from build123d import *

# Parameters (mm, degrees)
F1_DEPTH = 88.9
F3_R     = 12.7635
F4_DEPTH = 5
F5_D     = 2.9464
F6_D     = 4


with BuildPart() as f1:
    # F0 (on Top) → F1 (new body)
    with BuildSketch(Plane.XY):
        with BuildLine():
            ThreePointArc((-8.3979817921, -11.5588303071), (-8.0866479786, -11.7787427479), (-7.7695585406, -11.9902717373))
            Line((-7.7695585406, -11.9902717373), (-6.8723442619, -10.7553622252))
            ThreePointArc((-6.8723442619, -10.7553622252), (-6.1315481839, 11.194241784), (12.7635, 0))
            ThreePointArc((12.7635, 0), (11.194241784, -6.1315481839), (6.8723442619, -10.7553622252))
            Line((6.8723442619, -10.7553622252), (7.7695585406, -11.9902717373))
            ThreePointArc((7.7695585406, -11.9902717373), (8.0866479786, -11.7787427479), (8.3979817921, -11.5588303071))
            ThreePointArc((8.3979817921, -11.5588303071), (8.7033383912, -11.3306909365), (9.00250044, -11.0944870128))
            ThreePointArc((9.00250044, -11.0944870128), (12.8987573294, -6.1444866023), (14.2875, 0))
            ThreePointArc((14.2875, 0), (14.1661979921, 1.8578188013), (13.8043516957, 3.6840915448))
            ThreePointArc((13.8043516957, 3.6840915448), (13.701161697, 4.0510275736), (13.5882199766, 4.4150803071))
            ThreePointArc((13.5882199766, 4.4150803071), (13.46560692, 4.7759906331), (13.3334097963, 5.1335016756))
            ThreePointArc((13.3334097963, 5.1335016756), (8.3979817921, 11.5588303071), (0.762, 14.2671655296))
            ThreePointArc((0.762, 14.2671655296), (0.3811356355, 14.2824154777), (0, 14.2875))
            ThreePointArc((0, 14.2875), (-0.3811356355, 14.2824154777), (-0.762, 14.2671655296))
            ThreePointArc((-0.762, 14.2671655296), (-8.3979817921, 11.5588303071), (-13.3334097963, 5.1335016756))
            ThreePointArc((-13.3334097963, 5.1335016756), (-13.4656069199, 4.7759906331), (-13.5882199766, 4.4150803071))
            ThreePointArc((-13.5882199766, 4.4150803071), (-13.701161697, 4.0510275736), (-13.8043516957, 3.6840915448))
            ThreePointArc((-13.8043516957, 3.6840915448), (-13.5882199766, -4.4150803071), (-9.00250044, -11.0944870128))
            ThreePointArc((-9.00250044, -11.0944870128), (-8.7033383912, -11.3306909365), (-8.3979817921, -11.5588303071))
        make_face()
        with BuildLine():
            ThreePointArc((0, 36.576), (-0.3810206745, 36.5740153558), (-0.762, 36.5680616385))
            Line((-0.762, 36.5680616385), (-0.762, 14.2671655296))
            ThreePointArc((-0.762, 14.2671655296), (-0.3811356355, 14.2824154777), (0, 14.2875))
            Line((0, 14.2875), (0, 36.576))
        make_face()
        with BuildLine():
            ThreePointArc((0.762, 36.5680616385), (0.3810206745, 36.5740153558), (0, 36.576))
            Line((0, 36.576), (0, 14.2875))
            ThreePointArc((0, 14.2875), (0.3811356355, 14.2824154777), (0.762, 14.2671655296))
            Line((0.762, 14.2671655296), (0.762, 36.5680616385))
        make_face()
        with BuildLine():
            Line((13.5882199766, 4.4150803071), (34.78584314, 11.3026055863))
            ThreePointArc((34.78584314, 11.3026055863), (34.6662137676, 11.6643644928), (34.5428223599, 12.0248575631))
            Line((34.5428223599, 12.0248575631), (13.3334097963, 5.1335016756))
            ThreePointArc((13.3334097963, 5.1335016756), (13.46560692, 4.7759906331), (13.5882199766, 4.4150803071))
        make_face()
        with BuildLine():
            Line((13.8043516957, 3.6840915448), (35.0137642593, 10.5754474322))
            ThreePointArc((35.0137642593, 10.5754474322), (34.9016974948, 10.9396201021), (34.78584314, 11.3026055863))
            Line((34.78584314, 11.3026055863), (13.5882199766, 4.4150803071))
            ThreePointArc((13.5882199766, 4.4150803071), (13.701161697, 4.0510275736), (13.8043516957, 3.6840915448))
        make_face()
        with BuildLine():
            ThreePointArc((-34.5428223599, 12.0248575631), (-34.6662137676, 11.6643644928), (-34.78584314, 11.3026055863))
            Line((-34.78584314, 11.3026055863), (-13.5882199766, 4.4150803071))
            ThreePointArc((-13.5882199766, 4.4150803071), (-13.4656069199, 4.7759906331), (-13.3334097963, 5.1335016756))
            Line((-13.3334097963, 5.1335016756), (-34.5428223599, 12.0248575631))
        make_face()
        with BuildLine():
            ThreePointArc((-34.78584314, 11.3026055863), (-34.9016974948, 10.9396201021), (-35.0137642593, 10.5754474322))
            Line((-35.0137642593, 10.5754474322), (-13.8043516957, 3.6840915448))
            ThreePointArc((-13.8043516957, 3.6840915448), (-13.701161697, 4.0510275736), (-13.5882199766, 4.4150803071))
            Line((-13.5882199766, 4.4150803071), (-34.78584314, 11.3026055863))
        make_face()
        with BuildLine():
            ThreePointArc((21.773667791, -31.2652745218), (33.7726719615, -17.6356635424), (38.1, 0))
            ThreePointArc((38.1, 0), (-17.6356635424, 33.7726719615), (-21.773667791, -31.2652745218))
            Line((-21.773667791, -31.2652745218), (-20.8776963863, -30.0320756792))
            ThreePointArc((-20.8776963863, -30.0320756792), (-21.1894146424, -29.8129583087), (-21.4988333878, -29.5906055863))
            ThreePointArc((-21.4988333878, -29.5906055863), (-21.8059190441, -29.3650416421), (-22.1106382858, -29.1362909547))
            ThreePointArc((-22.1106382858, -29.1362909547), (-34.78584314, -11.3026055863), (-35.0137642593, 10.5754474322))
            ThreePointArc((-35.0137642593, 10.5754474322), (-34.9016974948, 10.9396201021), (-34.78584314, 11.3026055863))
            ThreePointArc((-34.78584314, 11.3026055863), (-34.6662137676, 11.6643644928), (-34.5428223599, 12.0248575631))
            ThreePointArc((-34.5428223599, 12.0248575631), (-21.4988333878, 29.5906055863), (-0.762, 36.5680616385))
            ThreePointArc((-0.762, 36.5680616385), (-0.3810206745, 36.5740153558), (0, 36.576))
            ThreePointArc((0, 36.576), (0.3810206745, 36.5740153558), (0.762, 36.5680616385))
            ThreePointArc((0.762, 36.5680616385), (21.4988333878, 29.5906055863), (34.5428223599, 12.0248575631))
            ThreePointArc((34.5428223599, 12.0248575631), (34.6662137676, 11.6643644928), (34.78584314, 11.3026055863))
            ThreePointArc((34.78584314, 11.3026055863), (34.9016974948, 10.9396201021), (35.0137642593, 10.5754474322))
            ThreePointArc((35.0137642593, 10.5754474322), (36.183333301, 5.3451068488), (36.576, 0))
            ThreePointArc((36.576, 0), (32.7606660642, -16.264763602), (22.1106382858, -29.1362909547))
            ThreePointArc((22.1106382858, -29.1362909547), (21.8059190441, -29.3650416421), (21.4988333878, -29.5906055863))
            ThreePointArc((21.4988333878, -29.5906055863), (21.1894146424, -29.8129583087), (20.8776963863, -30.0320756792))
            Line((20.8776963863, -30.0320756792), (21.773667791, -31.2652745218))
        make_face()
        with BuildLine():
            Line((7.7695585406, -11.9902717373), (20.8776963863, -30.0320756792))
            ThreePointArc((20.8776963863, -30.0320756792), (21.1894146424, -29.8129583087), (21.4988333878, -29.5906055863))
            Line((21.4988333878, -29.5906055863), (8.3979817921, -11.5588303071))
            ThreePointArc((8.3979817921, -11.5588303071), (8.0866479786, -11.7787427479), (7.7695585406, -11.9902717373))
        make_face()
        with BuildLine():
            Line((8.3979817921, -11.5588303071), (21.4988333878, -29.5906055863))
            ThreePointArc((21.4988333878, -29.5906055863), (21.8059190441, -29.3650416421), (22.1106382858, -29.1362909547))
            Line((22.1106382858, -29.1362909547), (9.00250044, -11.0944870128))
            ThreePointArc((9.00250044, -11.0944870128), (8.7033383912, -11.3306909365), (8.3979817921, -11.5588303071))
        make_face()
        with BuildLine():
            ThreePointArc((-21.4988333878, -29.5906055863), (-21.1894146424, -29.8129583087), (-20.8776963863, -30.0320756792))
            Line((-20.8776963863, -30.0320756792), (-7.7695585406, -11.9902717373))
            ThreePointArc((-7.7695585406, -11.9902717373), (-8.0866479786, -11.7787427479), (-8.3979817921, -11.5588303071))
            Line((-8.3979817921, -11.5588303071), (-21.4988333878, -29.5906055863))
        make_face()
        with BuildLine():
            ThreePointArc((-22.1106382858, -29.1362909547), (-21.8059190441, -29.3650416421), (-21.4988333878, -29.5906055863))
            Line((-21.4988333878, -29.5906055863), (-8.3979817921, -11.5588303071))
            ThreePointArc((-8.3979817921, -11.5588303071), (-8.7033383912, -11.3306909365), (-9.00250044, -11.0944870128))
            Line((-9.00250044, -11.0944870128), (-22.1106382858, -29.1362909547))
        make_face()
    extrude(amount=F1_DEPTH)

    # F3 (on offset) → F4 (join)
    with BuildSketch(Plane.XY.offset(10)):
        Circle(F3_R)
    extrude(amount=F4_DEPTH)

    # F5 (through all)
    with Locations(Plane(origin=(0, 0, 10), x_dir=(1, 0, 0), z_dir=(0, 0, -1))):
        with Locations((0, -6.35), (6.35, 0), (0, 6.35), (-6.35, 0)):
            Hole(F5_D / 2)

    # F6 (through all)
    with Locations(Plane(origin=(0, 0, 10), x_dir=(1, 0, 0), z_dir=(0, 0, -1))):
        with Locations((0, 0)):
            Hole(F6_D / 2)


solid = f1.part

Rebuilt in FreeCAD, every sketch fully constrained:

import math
import FreeCAD as App
import Part
import Sketcher
Q = App.Units.Quantity

doc = App.newDocument("Part")
body = doc.addObject("PartDesign::Body", "Body")

# Sketch on XY plane
sketch1 = body.newObject("Sketcher::SketchObject", "Sketch")
sketch1.AttachmentSupport = (doc.getObject("XY_Plane"), [""])
sketch1.MapMode = "FlatFace"
sketch1.addGeometry([
    Part.LineSegment(App.Vector(-7.8, -12, 0), App.Vector(-6.9, -10.8, 0)),  # 0
    Part.ArcOfCircle(Part.Circle(App.Vector(0, 0, 0), App.Vector(0, 0, 1), 12.8), math.radians(0), math.radians(237)),  # 1
    Part.ArcOfCircle(Part.Circle(App.Vector(0, 0, 0), App.Vector(0, 0, 1), 12.8), math.radians(-57), math.radians(0)),  # 2
    Part.LineSegment(App.Vector(6.9, -10.8, 0), App.Vector(7.8, -12, 0)),  # 3
    Part.LineSegment(App.Vector(7.8, -12, 0), App.Vector(20.9, -30, 0)),  # 4
    Part.LineSegment(App.Vector(20.9, -30, 0), App.Vector(21.8, -31.3, 0)),  # 5
    Part.ArcOfCircle(Part.Circle(App.Vector(0, 0, 0), App.Vector(0, 0, 1), 38.1), math.radians(-55), math.radians(0)),  # 6
    Part.ArcOfCircle(Part.Circle(App.Vector(0, 0, 0), App.Vector(0, 0, 1), 38.1), math.radians(0), math.radians(235)),  # 7
    Part.LineSegment(App.Vector(-21.8, -31.3, 0), App.Vector(-20.9, -30, 0)),  # 8
    Part.LineSegment(App.Vector(-20.9, -30, 0), App.Vector(-7.8, -12, 0)),  # 9
    Part.ArcOfCircle(Part.Circle(App.Vector(0, 0, 0), App.Vector(0, 0, 1), 36.6), math.radians(163), math.radians(233)),  # 10
    Part.LineSegment(App.Vector(-35, 10.6, 0), App.Vector(-13.8, 3.7, 0)),  # 11
    Part.ArcOfCircle(Part.Circle(App.Vector(0, 0, 0), App.Vector(0, 0, 1), 14.3), math.radians(165), math.radians(231)),  # 12
    Part.LineSegment(App.Vector(-9, -11.1, 0), App.Vector(-22.1, -29.1, 0)),  # 13
    Part.ArcOfCircle(Part.Circle(App.Vector(0, 0, 0), App.Vector(0, 0, 1), 14.3), math.radians(-51), math.radians(0)),  # 14
    Part.ArcOfCircle(Part.Circle(App.Vector(0, 0, 0), App.Vector(0, 0, 1), 14.3), math.radians(0), math.radians(14.94)),  # 15
    Part.LineSegment(App.Vector(13.8, 3.7, 0), App.Vector(35, 10.6, 0)),  # 16
    Part.ArcOfCircle(Part.Circle(App.Vector(0, 0, 0), App.Vector(0, 0, 1), 36.6), math.radians(0), math.radians(16.81)),  # 17
    Part.ArcOfCircle(Part.Circle(App.Vector(0, 0, 0), App.Vector(0, 0, 1), 36.6), math.radians(-53), math.radians(0)),  # 18
    Part.LineSegment(App.Vector(22.1, -29.1, 0), App.Vector(9, -11.1, 0)),  # 19
    Part.LineSegment(App.Vector(34.5, 12, 0), App.Vector(13.3, 5.1, 0)),  # 20
    Part.ArcOfCircle(Part.Circle(App.Vector(0, 0, 0), App.Vector(0, 0, 1), 14.3), math.radians(21), math.radians(87)),  # 21
    Part.LineSegment(App.Vector(0.8, 14.3, 0), App.Vector(0.8, 36.6, 0)),  # 22
    Part.ArcOfCircle(Part.Circle(App.Vector(0, 0, 0), App.Vector(0, 0, 1), 36.6), math.radians(19), math.radians(89)),  # 23
    Part.LineSegment(App.Vector(-0.8, 36.6, 0), App.Vector(-0.8, 14.3, 0)),  # 24
    Part.ArcOfCircle(Part.Circle(App.Vector(0, 0, 0), App.Vector(0, 0, 1), 14.3), math.radians(93), math.radians(159)),  # 25
    Part.LineSegment(App.Vector(-13.3, 5.1, 0), App.Vector(-34.5, 12, 0)),  # 26
    Part.ArcOfCircle(Part.Circle(App.Vector(0, 0, 0), App.Vector(0, 0, 1), 36.6), math.radians(91), math.radians(161)),  # 27
], False)
sketch1.addConstraint([
    Sketcher.Constraint("Coincident", 0, 2, 1, 2),
    Sketcher.Constraint("Tangent", 1, 1, 2, 2),
    Sketcher.Constraint("Coincident", 2, 1, 3, 1),
    Sketcher.Constraint("Coincident", 3, 2, 4, 1),
    Sketcher.Constraint("Coincident", 4, 2, 5, 1),
    Sketcher.Constraint("Coincident", 5, 2, 6, 1),
    Sketcher.Constraint("Tangent", 6, 2, 7, 1),
    Sketcher.Constraint("Coincident", 7, 2, 8, 1),
    Sketcher.Constraint("Coincident", 8, 2, 9, 1),
    Sketcher.Constraint("Coincident", 9, 2, 0, 1),
    Sketcher.Constraint("Coincident", 10, 1, 11, 1),
    Sketcher.Constraint("Coincident", 11, 2, 12, 1),
    Sketcher.Constraint("Coincident", 12, 2, 13, 1),
    Sketcher.Constraint("Coincident", 13, 2, 10, 2),
    Sketcher.Constraint("Tangent", 14, 2, 15, 1),
    Sketcher.Constraint("Coincident", 15, 2, 16, 1),
    Sketcher.Constraint("Coincident", 16, 2, 17, 2),
    Sketcher.Constraint("Tangent", 17, 1, 18, 2),
    Sketcher.Constraint("Coincident", 18, 1, 19, 1),
    Sketcher.Constraint("Coincident", 19, 2, 14, 1),
    Sketcher.Constraint("Coincident", 20, 2, 21, 1),
    Sketcher.Constraint("Coincident", 21, 2, 22, 1),
    Sketcher.Constraint("Coincident", 22, 2, 23, 2),
    Sketcher.Constraint("Coincident", 23, 1, 20, 1),
    Sketcher.Constraint("Coincident", 24, 2, 25, 1),
    Sketcher.Constraint("Coincident", 25, 2, 26, 1),
    Sketcher.Constraint("Coincident", 26, 2, 27, 2),
    Sketcher.Constraint("Coincident", 27, 1, 24, 1),
    Sketcher.Constraint("Vertical", 22),
    Sketcher.Constraint("Vertical", 24),
    Sketcher.Constraint("Coincident", 1, 3, -1, 1),
    Sketcher.Constraint("Coincident", 6, 3, -1, 1),
    Sketcher.Constraint("Coincident", 10, 3, -1, 1),
    Sketcher.Constraint("Coincident", 12, 3, -1, 1),
    Sketcher.Constraint("Coincident", 14, 3, -1, 1),
    Sketcher.Constraint("Coincident", 17, 3, -1, 1),
    Sketcher.Constraint("Coincident", 21, 3, -1, 1),
    Sketcher.Constraint("Coincident", 23, 3, -1, 1),
    Sketcher.Constraint("Coincident", 25, 3, -1, 1),
    Sketcher.Constraint("Coincident", 27, 3, -1, 1),
    Sketcher.Constraint("Equal", 1, 2),
    Sketcher.Constraint("Equal", 6, 7),
    Sketcher.Constraint("Equal", 12, 14),
    Sketcher.Constraint("Equal", 14, 15),
    Sketcher.Constraint("Equal", 10, 17),
    Sketcher.Constraint("Equal", 17, 18),
    Sketcher.Constraint("Equal", 15, 21),
    Sketcher.Constraint("Equal", 18, 23),
    Sketcher.Constraint("Equal", 21, 25),
    Sketcher.Constraint("Equal", 23, 27),
    Sketcher.Constraint("Symmetric", 4, 2, 8, 2, -2),
    Sketcher.Constraint("Symmetric", 3, 2, 9, 2, -2),
    Sketcher.Constraint("PointOnObject", 1, 1, -1),
    Sketcher.Constraint("PointOnObject", 6, 2, -1),
    Sketcher.Constraint("PointOnObject", 14, 2, -1),
    Sketcher.Constraint("PointOnObject", 17, 1, -1),
    Sketcher.Constraint("Parallel", 3, 4),
    Sketcher.Constraint("Parallel", 4, 5),
    Sketcher.Constraint("Parallel", 0, 8),
    Sketcher.Constraint("Parallel", 8, 9),
    Sketcher.Constraint("Parallel", 9, 13),
    Sketcher.Constraint("Parallel", 5, 19),
    Sketcher.Constraint("Parallel", 16, 20),
    Sketcher.Constraint("Parallel", 11, 26),
    Sketcher.Constraint("Horizontal", 11, 2, 15, 2),
    Sketcher.Constraint("Horizontal", 10, 1, 16, 2),
    Sketcher.Constraint("Horizontal", 13, 2, 18, 1),
    Sketcher.Constraint("Horizontal", 21, 2, 24, 2),
    Sketcher.Constraint("Horizontal", 20, 2, 25, 2),
    Sketcher.Constraint("Equal", 9, 11),
    Sketcher.Constraint("Equal", 11, 13),
    Sketcher.Constraint("Equal", 19, 20),
    Sketcher.Constraint("Radius", 6, Q("1.5 in")),
    Sketcher.Constraint("Radius", 10, Q("1.44 in")),
    Sketcher.Constraint("Angle", 0, Q("54 deg")),
    Sketcher.Constraint("Angle", 11, Q("-18 deg")),
    Sketcher.Constraint("Radius", 12, Q("0.5625 in")),
    Sketcher.Constraint("Radius", 1, Q("0.5025 in")),
    Sketcher.Constraint("DistanceX", -1, 1, 21, 2, Q("0.03 in")),
    Sketcher.Constraint("DistanceX", 12, 2, -1, 1, Q("9.0025 mm")),
    Sketcher.Constraint("DistanceY", 5, 2, 4, 2, Q("1.233199 mm")),
    Sketcher.Constraint("DistanceX", -1, 1, 3, 2, Q("7.769559 mm")),
])
pad1 = body.newObject("PartDesign::Pad", "Pad")
pad1.Profile = sketch1
pad1.Length = Q("3.5 in")

# Sketch on XY plane
sketch2 = body.newObject("Sketcher::SketchObject", "Sketch001")
sketch2.AttachmentSupport = (doc.getObject("XY_Plane"), [""])
sketch2.MapMode = "FlatFace"
sketch2.AttachmentOffset = App.Placement(App.Vector(0, 0, 10), App.Rotation())
sketch2.addGeometry(Part.Circle(App.Vector(0, 0, 0), App.Vector(0, 0, 1), 13), False)
sketch2.addConstraint([
    Sketcher.Constraint("Coincident", 0, 3, -1, 1),
    Sketcher.Constraint("Diameter", 0, Q("1.005 in")),
])
pad2 = body.newObject("PartDesign::Pad", "Pad001")
pad2.Profile = sketch2
pad2.Length = 5

# Sketch on XY plane
sketch3 = body.newObject("Sketcher::SketchObject", "Sketch002")
sketch3.AttachmentSupport = (doc.getObject("XY_Plane"), [""])
sketch3.MapMode = "FlatFace"
sketch3.AttachmentOffset = App.Placement(App.Vector(0, 0, 10), App.Rotation())
sketch3.addGeometry([
    Part.Circle(App.Vector(0, 6.3, 0), App.Vector(0, 0, 1), 1.5),
    Part.Circle(App.Vector(6.3, 0, 0), App.Vector(0, 0, 1), 1.5),
    Part.Circle(App.Vector(0, -6.3, 0), App.Vector(0, 0, 1), 1.5),
    Part.Circle(App.Vector(-6.3, 0, 0), App.Vector(0, 0, 1), 1.5),
], False)
sketch3.addConstraint([
    Sketcher.Constraint("Equal", 0, 1),
    Sketcher.Constraint("Equal", 1, 2),
    Sketcher.Constraint("Equal", 2, 3),
    Sketcher.Constraint("Symmetric", 0, 3, 2, 3, -1, 1),
    Sketcher.Constraint("Symmetric", 1, 3, 3, 3, -1, 1),
    Sketcher.Constraint("PointOnObject", 0, 3, -2),
    Sketcher.Constraint("PointOnObject", 1, 3, -1),
    Sketcher.Constraint("Diameter", 0, Q("0.116 in")),
    Sketcher.Constraint("DistanceY", 2, 3, 0, 3, Q("0.5 in")),
    Sketcher.Constraint("DistanceX", 3, 3, 1, 3, Q("0.5 in")),
])
doc.recompute()
hole = body.newObject("PartDesign::Hole", "Hole")
hole.Profile = sketch3
hole.ThreadType = "None"
hole.Diameter = Q("0.116 in")
hole.DepthType = "ThroughAll"
hole.Reversed = True

# Sketch on XY plane
sketch4 = body.newObject("Sketcher::SketchObject", "Sketch003")
sketch4.AttachmentSupport = (doc.getObject("XY_Plane"), [""])
sketch4.MapMode = "FlatFace"
sketch4.AttachmentOffset = App.Placement(App.Vector(0, 0, 10), App.Rotation())
sketch4.addGeometry(Part.Circle(App.Vector(0, 0, 0), App.Vector(0, 0, 1), 2), False)
sketch4.addConstraint([
    Sketcher.Constraint("Coincident", 0, 3, -1, 1),
    Sketcher.Constraint("Diameter", 0, Q("4 mm")),
])
doc.recompute()
hole2 = body.newObject("PartDesign::Hole", "Hole001")
hole2.Profile = sketch4
hole2.ThreadType = "None"
hole2.Diameter = 4
hole2.DepthType = "ThroughAll"
hole2.Reversed = True

doc.recompute()
